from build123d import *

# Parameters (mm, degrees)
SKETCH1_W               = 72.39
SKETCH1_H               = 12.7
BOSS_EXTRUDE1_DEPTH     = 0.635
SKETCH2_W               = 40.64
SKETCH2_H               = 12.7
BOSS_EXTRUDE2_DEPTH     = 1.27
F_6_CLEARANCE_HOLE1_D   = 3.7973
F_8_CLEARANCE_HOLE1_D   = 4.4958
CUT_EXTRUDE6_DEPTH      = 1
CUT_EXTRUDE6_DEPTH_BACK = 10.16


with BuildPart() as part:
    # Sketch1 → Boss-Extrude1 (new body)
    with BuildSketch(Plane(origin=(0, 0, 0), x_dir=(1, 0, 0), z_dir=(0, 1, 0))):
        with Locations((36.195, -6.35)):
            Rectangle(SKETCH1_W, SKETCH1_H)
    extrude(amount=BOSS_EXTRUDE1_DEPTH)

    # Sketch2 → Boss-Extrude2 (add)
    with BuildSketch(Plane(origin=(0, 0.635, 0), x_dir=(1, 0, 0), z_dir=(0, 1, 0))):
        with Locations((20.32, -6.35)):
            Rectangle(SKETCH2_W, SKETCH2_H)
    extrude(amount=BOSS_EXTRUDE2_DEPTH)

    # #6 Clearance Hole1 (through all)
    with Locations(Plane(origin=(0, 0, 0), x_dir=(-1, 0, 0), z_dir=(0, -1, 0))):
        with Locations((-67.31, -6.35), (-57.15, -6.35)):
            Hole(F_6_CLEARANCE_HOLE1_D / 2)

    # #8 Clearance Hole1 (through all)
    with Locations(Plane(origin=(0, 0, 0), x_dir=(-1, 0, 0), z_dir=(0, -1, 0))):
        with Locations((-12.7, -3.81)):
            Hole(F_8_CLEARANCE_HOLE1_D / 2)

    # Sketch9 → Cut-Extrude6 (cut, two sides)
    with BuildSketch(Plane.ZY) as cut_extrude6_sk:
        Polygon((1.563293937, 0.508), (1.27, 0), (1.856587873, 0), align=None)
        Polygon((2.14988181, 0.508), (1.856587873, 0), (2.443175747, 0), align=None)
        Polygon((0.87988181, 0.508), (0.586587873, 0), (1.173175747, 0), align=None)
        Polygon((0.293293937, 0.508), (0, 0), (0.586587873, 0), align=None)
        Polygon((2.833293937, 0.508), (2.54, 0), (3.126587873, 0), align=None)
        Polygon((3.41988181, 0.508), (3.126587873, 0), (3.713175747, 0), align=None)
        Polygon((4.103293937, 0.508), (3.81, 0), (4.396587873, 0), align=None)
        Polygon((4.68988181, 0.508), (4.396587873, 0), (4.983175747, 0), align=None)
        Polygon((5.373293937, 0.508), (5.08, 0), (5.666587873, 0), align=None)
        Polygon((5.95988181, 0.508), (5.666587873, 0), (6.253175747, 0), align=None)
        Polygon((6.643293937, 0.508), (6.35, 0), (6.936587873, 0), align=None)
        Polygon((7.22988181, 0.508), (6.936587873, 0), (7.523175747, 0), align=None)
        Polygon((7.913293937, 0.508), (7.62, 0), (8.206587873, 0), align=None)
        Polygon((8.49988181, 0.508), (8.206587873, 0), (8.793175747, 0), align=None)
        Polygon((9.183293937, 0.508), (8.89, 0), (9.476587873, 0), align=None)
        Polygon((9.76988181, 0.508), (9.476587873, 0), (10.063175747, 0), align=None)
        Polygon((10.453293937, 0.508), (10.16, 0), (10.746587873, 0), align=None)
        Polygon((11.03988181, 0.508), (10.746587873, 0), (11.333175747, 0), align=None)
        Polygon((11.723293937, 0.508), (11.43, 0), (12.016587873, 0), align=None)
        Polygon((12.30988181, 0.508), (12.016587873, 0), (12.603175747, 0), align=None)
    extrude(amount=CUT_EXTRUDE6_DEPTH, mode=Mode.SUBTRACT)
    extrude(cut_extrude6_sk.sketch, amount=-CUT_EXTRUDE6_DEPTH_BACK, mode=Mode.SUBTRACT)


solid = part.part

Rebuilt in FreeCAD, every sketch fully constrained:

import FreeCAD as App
import Part
import Sketcher
Q = App.Units.Quantity


def add_polygon(sketch, points):
    """Adds a closed chain of lines whose ends are joined by coincident constraints."""
    first, n = sketch.GeometryCount, len(points)
    for a, b in zip(points, points[1:] + points[:1]):
        sketch.addGeometry(Part.LineSegment(App.Vector(*a, 0), App.Vector(*b, 0)), False)
    for i in range(n):
        sketch.addConstraint(Sketcher.Constraint("Coincident", first + i, 2, first + (i + 1) % n, 1))

doc = App.newDocument("Part")
body = doc.addObject("PartDesign::Body", "Body")

# Sketch on XZ plane
sketch1 = doc.addObject("Sketcher::SketchObject", "Sketch")
body.addObject(sketch1)
sketch1.AttachmentSupport = (doc.XZ_Plane, [""])
sketch1.MapMode = "FlatFace"
add_polygon(sketch1, [(0, 0), (0, 13), (72, 13), (72, 0)])  # lines 0-3
sketch1.addConstraint(Sketcher.Constraint("Vertical", 0))
sketch1.addConstraint(Sketcher.Constraint("Horizontal", 1))
sketch1.addConstraint(Sketcher.Constraint("Vertical", 2))
sketch1.addConstraint(Sketcher.Constraint("Horizontal", 3))
sketch1.addConstraint(Sketcher.Constraint("Coincident", 3, 2, -1, 1))
sketch1.addConstraint(Sketcher.Constraint("DistanceY", 0, 1, 0, 2, Q("0.5 in")))
sketch1.addConstraint(Sketcher.Constraint("DistanceX", 1, 1, 1, 2, Q("2.85 in")))
pad1 = doc.addObject("PartDesign::Pad", "Pad")
body.addObject(pad1)
pad1.Profile = sketch1
pad1.Length = Q("0.025 in")
pad1.Reversed = True

# Sketch on XZ plane
sketch2 = doc.addObject("Sketcher::SketchObject", "Sketch001")
body.addObject(sketch2)
sketch2.AttachmentSupport = (doc.XZ_Plane, [""])
sketch2.MapMode = "FlatFace"
sketch2.AttachmentOffset = App.Placement(App.Vector(0, 0, -0.025 * 25.4), App.Rotation())
add_polygon(sketch2, [(0, 0), (0, 13), (41, 13), (41, 0)])  # lines 0-3
sketch2.addConstraint(Sketcher.Constraint("Vertical", 0))
sketch2.addConstraint(Sketcher.Constraint("Horizontal", 1))
sketch2.addConstraint(Sketcher.Constraint("Vertical", 2))
sketch2.addConstraint(Sketcher.Constraint("Horizontal", 3))
sketch2.addConstraint(Sketcher.Constraint("Coincident", 3, 2, -1, 1))
sketch2.addConstraint(Sketcher.Constraint("DistanceX", 1, 1, 1, 2, Q("1.6 in")))
sketch2.addConstraint(Sketcher.Constraint("DistanceY", 0, 1, 0, 2, Q("0.5 in")))
pad2 = doc.addObject("PartDesign::Pad", "Pad001")
body.addObject(pad2)
pad2.Profile = sketch2
pad2.Length = Q("0.05 in")
pad2.Reversed = True

# Sketch on XZ plane
sketch3 = doc.addObject("Sketcher::SketchObject", "Sketch002")
body.addObject(sketch3)
sketch3.AttachmentSupport = (doc.XZ_Plane, [""])
sketch3.MapMode = "FlatFace"
sketch3.addGeometry(Part.Circle(App.Vector(67.3, 6.3, 0), App.Vector(0, 0, 1), 1.9), False)
sketch3.addGeometry(Part.Circle(App.Vector(57.1, 6.3, 0), App.Vector(0, 0, 1), 1.9), False)
sketch3.addConstraint(Sketcher.Constraint("Equal", 0, 1))
sketch3.addConstraint(Sketcher.Constraint("Horizontal", 0, 3, 1, 3))
sketch3.addConstraint(Sketcher.Constraint("Diameter", 0, Q("0.1495 in")))
sketch3.addConstraint(Sketcher.Constraint("DistanceX", 1, 3, 0, 3, Q("0.4 in")))
sketch3.addConstraint(Sketcher.Constraint("DistanceX", -1, 1, 0, 3, Q("2.65 in")))
sketch3.addConstraint(Sketcher.Constraint("DistanceY", -1, 1, 0, 3, Q("0.25 in")))
doc.recompute()
hole = doc.addObject("PartDesign::Hole", "Hole")
body.addObject(hole)
hole.Profile = sketch3
hole.ThreadType = "None"
hole.Diameter = Q("0.1495 in")
hole.DepthType = "ThroughAll"

# Sketch on XZ plane
sketch4 = doc.addObject("Sketcher::SketchObject", "Sketch003")
body.addObject(sketch4)
sketch4.AttachmentSupport = (doc.XZ_Plane, [""])
sketch4.MapMode = "FlatFace"
sketch4.addGeometry(Part.Circle(App.Vector(12.7, 3.8, 0), App.Vector(0, 0, 1), 2.2), False)
sketch4.addConstraint(Sketcher.Constraint("Diameter", 0, Q("0.177 in")))
sketch4.addConstraint(Sketcher.Constraint("DistanceX", -1, 1, 0, 3, Q("0.5 in")))
sketch4.addConstraint(Sketcher.Constraint("DistanceY", -1, 1, 0, 3, Q("0.15 in")))
doc.recompute()
hole2 = doc.addObject("PartDesign::Hole", "Hole001")
body.addObject(hole2)
hole2.Profile = sketch4
hole2.ThreadType = "None"
hole2.Diameter = Q("0.177 in")
hole2.DepthType = "ThroughAll"

# Sketch on YZ plane
sketch5 = doc.addObject("Sketcher::SketchObject", "Sketch004")
body.addObject(sketch5)
sketch5.AttachmentSupport = (doc.YZ_Plane, [""])
sketch5.MapMode = "FlatFace"
add_polygon(sketch5, [(0.5, 1.6), (0, 1.3), (0, 1.9)])  # lines 0-2
add_polygon(sketch5, [(0.5, 2.1), (0, 1.9), (0, 2.4)])  # lines 3-5
add_polygon(sketch5, [(0.5, 0.9), (0, 0.6), (0, 1.2)])  # lines 6-8
add_polygon(sketch5, [(0.5, 0.3), (0, 0), (0, 0.6)])  # lines 9-11
add_polygon(sketch5, [(0.5, 2.8), (0, 2.5), (0, 3.1)])  # lines 12-14
add_polygon(sketch5, [(0.5, 3.4), (0, 3.1), (0, 3.7)])  # lines 15-17
add_polygon(sketch5, [(0.5, 4.1), (0, 3.8), (0, 4.4)])  # lines 18-20
add_polygon(sketch5, [(0.5, 4.7), (0, 4.4), (0, 5)])  # lines 21-23
add_polygon(sketch5, [(0.5, 5.4), (0, 5.1), (0, 5.7)])  # lines 24-26
add_polygon(sketch5, [(0.5, 6), (0, 5.7), (0, 6.3)])  # lines 27-29
add_polygon(sketch5, [(0.5, 6.6), (0, 6.3), (0, 6.9)])  # lines 30-32
add_polygon(sketch5, [(0.5, 7.2), (0, 6.9), (0, 7.5)])  # lines 33-35
add_polygon(sketch5, [(0.5, 7.9), (0, 7.6), (0, 8.2)])  # lines 36-38
add_polygon(sketch5, [(0.5, 8.5), (0, 8.2), (0, 8.8)])  # lines 39-41
add_polygon(sketch5, [(0.5, 9.2), (0, 8.9), (0, 9.5)])  # lines 42-44
add_polygon(sketch5, [(0.5, 9.8), (0, 9.5), (0, 10.1)])  # lines 45-47
add_polygon(sketch5, [(0.5, 10.5), (0, 10.2), (0, 10.7)])  # lines 48-50
add_polygon(sketch5, [(0.5, 11), (0, 10.7), (0, 11.3)])  # lines 51-53
add_polygon(sketch5, [(0.5, 11.7), (0, 11.4), (0, 12)])  # lines 54-56
add_polygon(sketch5, [(0.5, 12.3), (0, 12), (0, 12.6)])  # lines 57-59
sketch5.addConstraint(Sketcher.Constraint("Vertical", 1))
sketch5.addConstraint(Sketcher.Constraint("Vertical", 4))
sketch5.addConstraint(Sketcher.Constraint("Vertical", 7))
sketch5.addConstraint(Sketcher.Constraint("Vertical", 10))
sketch5.addConstraint(Sketcher.Constraint("Vertical", 13))
sketch5.addConstraint(Sketcher.Constraint("Vertical", 16))
sketch5.addConstraint(Sketcher.Constraint("Vertical", 19))
sketch5.addConstraint(Sketcher.Constraint("Vertical", 22))
sketch5.addConstraint(Sketcher.Constraint("Vertical", 25))
sketch5.addConstraint(Sketcher.Constraint("Vertical", 28))
sketch5.addConstraint(Sketcher.Constraint("Vertical", 31))
sketch5.addConstraint(Sketcher.Constraint("Vertical", 34))
sketch5.addConstraint(Sketcher.Constraint("Vertical", 37))
sketch5.addConstraint(Sketcher.Constraint("Vertical", 40))
sketch5.addConstraint(Sketcher.Constraint("Vertical", 43))
sketch5.addConstraint(Sketcher.Constraint("Vertical", 46))
sketch5.addConstraint(Sketcher.Constraint("Vertical", 49))
sketch5.addConstraint(Sketcher.Constraint("Vertical", 52))
sketch5.addConstraint(Sketcher.Constraint("Vertical", 55))
sketch5.addConstraint(Sketcher.Constraint("Vertical", 58))
sketch5.addConstraint(Sketcher.Constraint("Coincident", 9, 2, -1, 1))
sketch5.addConstraint(Sketcher.Constraint("Coincident", 3, 2, 1, 2))
sketch5.addConstraint(Sketcher.Constraint("Coincident", 10, 2, 6, 2))
sketch5.addConstraint(Sketcher.Constraint("Coincident", 15, 2, 13, 2))
sketch5.addConstraint(Sketcher.Constraint("Coincident", 21, 2, 19, 2))
sketch5.addConstraint(Sketcher.Constraint("Coincident", 27, 2, 25, 2))
sketch5.addConstraint(Sketcher.Constraint("Coincident", 33, 2, 31, 2))
sketch5.addConstraint(Sketcher.Constraint("Coincident", 39, 2, 37, 2))
sketch5.addConstraint(Sketcher.Constraint("Coincident", 45, 2, 43, 2))
sketch5.addConstraint(Sketcher.Constraint("Coincident", 51, 2, 49, 2))
sketch5.addConstraint(Sketcher.Constraint("Coincident", 57, 2, 55, 2))
sketch5.addConstraint(Sketcher.Constraint("PointOnObject", 0, 2, -2))
sketch5.addConstraint(Sketcher.Constraint("PointOnObject", 12, 2, -2))
sketch5.addConstraint(Sketcher.Constraint("PointOnObject", 18, 2, -2))
sketch5.addConstraint(Sketcher.Constraint("PointOnObject", 24, 2, -2))
sketch5.addConstraint(Sketcher.Constraint("PointOnObject", 30, 2, -2))
sketch5.addConstraint(Sketcher.Constraint("PointOnObject", 36, 2, -2))
sketch5.addConstraint(Sketcher.Constraint("PointOnObject", 42, 2, -2))
sketch5.addConstraint(Sketcher.Constraint("PointOnObject", 48, 2, -2))
sketch5.addConstraint(Sketcher.Constraint("PointOnObject", 54, 2, -2))
sketch5.addConstraint(Sketcher.Constraint("Parallel", 0, 3))
sketch5.addConstraint(Sketcher.Constraint("Parallel", 2, 5))
sketch5.addConstraint(Sketcher.Constraint("Parallel", 3, 6))
sketch5.addConstraint(Sketcher.Constraint("Parallel", 5, 8))
sketch5.addConstraint(Sketcher.Constraint("Parallel", 6, 9))
sketch5.addConstraint(Sketcher.Constraint("Parallel", 8, 11))
sketch5.addConstraint(Sketcher.Constraint("Parallel", 9, 12))
sketch5.addConstraint(Sketcher.Constraint("Parallel", 11, 14))
sketch5.addConstraint(Sketcher.Constraint("Parallel", 12, 15))
sketch5.addConstraint(Sketcher.Constraint("Parallel", 14, 17))
sketch5.addConstraint(Sketcher.Constraint("Parallel", 15, 18))
sketch5.addConstraint(Sketcher.Constraint("Parallel", 17, 20))
sketch5.addConstraint(Sketcher.Constraint("Parallel", 18, 21))
sketch5.addConstraint(Sketcher.Constraint("Parallel", 20, 23))
sketch5.addConstraint(Sketcher.Constraint("Parallel", 21, 24))
sketch5.addConstraint(Sketcher.Constraint("Parallel", 23, 26))
sketch5.addConstraint(Sketcher.Constraint("Parallel", 24, 27))
sketch5.addConstraint(Sketcher.Constraint("Parallel", 26, 29))
sketch5.addConstraint(Sketcher.Constraint("Parallel", 27, 30))
sketch5.addConstraint(Sketcher.Constraint("Parallel", 29, 32))
sketch5.addConstraint(Sketcher.Constraint("Parallel", 30, 33))
sketch5.addConstraint(Sketcher.Constraint("Parallel", 32, 35))
sketch5.addConstraint(Sketcher.Constraint("Parallel", 33, 36))
sketch5.addConstraint(Sketcher.Constraint("Parallel", 35, 38))
sketch5.addConstraint(Sketcher.Constraint("Parallel", 36, 39))
sketch5.addConstraint(Sketcher.Constraint("Parallel", 38, 41))
sketch5.addConstraint(Sketcher.Constraint("Parallel", 39, 42))
sketch5.addConstraint(Sketcher.Constraint("Parallel", 41, 44))
sketch5.addConstraint(Sketcher.Constraint("Parallel", 42, 45))
sketch5.addConstraint(Sketcher.Constraint("Parallel", 44, 47))
sketch5.addConstraint(Sketcher.Constraint("Parallel", 45, 48))
sketch5.addConstraint(Sketcher.Constraint("Parallel", 47, 50))
sketch5.addConstraint(Sketcher.Constraint("Parallel", 48, 51))
sketch5.addConstraint(Sketcher.Constraint("Parallel", 50, 53))
sketch5.addConstraint(Sketcher.Constraint("Parallel", 51, 54))
sketch5.addConstraint(Sketcher.Constraint("Parallel", 53, 56))
sketch5.addConstraint(Sketcher.Constraint("Parallel", 54, 57))
sketch5.addConstraint(Sketcher.Constraint("Parallel", 56, 59))
sketch5.addConstraint(Sketcher.Constraint("Vertical", 2, 2, 5, 2))
sketch5.addConstraint(Sketcher.Constraint("Vertical", 5, 2, 8, 2))
sketch5.addConstraint(Sketcher.Constraint("Vertical", 8, 2, 11, 2))
sketch5.addConstraint(Sketcher.Constraint("Vertical", 11, 2, 14, 2))
sketch5.addConstraint(Sketcher.Constraint("Vertical", 14, 2, 17, 2))
sketch5.addConstraint(Sketcher.Constraint("Vertical", 17, 2, 20, 2))
sketch5.addConstraint(Sketcher.Constraint("Vertical", 20, 2, 23, 2))
sketch5.addConstraint(Sketcher.Constraint("Vertical", 23, 2, 26, 2))
sketch5.addConstraint(Sketcher.Constraint("Vertical", 26, 2, 29, 2))
sketch5.addConstraint(Sketcher.Constraint("Vertical", 29, 2, 32, 2))
sketch5.addConstraint(Sketcher.Constraint("Vertical", 32, 2, 35, 2))
sketch5.addConstraint(Sketcher.Constraint("Vertical", 35, 2, 38, 2))
sketch5.addConstraint(Sketcher.Constraint("Vertical", 38, 2, 41, 2))
sketch5.addConstraint(Sketcher.Constraint("Vertical", 41, 2, 44, 2))
sketch5.addConstraint(Sketcher.Constraint("Vertical", 44, 2, 47, 2))
sketch5.addConstraint(Sketcher.Constraint("Vertical", 47, 2, 50, 2))
sketch5.addConstraint(Sketcher.Constraint("Vertical", 50, 2, 53, 2))
sketch5.addConstraint(Sketcher.Constraint("Vertical", 53, 2, 56, 2))
sketch5.addConstraint(Sketcher.Constraint("Vertical", 56, 2, 59, 2))
sketch5.addConstraint(Sketcher.Constraint("Equal", 0, 2))
sketch5.addConstraint(Sketcher.Constraint("Angle", 0, Q("-150 deg")))
sketch5.addConstraint(Sketcher.Constraint("DistanceY", -1, 1, 12, 2, Q("0.1 in")))
sketch5.addConstraint(Sketcher.Constraint("DistanceY", -1, 1, 24, 2, Q("0.2 in")))
sketch5.addConstraint(Sketcher.Constraint("DistanceY", -1, 1, 36, 2, Q("0.3 in")))
sketch5.addConstraint(Sketcher.Constraint("DistanceY", -1, 1, 48, 2, Q("0.4 in")))
sketch5.addConstraint(Sketcher.Constraint("DistanceY", -1, 1, 0, 2, Q("0.05 in")))
sketch5.addConstraint(Sketcher.Constraint("DistanceX", -1, 1, 2, 2, Q("0.02 in")))
sketch5.addConstraint(Sketcher.Constraint("DistanceY", -1, 1, 18, 2, Q("0.15 in")))
sketch5.addConstraint(Sketcher.Constraint("DistanceY", -1, 1, 30, 2, Q("0.25 in")))
sketch5.addConstraint(Sketcher.Constraint("DistanceY", -1, 1, 42, 2, Q("0.35 in")))
sketch5.addConstraint(Sketcher.Constraint("DistanceY", -1, 1, 54, 2, Q("0.45 in")))
pocket1 = doc.addObject("PartDesign::Pocket", "Pocket")
body.addObject(pocket1)
pocket1.Profile = sketch5
pocket1.Type = "TwoLengths"
pocket1.Length = 1
pocket1.Length2 = Q("0.4 in")

doc.recompute()
